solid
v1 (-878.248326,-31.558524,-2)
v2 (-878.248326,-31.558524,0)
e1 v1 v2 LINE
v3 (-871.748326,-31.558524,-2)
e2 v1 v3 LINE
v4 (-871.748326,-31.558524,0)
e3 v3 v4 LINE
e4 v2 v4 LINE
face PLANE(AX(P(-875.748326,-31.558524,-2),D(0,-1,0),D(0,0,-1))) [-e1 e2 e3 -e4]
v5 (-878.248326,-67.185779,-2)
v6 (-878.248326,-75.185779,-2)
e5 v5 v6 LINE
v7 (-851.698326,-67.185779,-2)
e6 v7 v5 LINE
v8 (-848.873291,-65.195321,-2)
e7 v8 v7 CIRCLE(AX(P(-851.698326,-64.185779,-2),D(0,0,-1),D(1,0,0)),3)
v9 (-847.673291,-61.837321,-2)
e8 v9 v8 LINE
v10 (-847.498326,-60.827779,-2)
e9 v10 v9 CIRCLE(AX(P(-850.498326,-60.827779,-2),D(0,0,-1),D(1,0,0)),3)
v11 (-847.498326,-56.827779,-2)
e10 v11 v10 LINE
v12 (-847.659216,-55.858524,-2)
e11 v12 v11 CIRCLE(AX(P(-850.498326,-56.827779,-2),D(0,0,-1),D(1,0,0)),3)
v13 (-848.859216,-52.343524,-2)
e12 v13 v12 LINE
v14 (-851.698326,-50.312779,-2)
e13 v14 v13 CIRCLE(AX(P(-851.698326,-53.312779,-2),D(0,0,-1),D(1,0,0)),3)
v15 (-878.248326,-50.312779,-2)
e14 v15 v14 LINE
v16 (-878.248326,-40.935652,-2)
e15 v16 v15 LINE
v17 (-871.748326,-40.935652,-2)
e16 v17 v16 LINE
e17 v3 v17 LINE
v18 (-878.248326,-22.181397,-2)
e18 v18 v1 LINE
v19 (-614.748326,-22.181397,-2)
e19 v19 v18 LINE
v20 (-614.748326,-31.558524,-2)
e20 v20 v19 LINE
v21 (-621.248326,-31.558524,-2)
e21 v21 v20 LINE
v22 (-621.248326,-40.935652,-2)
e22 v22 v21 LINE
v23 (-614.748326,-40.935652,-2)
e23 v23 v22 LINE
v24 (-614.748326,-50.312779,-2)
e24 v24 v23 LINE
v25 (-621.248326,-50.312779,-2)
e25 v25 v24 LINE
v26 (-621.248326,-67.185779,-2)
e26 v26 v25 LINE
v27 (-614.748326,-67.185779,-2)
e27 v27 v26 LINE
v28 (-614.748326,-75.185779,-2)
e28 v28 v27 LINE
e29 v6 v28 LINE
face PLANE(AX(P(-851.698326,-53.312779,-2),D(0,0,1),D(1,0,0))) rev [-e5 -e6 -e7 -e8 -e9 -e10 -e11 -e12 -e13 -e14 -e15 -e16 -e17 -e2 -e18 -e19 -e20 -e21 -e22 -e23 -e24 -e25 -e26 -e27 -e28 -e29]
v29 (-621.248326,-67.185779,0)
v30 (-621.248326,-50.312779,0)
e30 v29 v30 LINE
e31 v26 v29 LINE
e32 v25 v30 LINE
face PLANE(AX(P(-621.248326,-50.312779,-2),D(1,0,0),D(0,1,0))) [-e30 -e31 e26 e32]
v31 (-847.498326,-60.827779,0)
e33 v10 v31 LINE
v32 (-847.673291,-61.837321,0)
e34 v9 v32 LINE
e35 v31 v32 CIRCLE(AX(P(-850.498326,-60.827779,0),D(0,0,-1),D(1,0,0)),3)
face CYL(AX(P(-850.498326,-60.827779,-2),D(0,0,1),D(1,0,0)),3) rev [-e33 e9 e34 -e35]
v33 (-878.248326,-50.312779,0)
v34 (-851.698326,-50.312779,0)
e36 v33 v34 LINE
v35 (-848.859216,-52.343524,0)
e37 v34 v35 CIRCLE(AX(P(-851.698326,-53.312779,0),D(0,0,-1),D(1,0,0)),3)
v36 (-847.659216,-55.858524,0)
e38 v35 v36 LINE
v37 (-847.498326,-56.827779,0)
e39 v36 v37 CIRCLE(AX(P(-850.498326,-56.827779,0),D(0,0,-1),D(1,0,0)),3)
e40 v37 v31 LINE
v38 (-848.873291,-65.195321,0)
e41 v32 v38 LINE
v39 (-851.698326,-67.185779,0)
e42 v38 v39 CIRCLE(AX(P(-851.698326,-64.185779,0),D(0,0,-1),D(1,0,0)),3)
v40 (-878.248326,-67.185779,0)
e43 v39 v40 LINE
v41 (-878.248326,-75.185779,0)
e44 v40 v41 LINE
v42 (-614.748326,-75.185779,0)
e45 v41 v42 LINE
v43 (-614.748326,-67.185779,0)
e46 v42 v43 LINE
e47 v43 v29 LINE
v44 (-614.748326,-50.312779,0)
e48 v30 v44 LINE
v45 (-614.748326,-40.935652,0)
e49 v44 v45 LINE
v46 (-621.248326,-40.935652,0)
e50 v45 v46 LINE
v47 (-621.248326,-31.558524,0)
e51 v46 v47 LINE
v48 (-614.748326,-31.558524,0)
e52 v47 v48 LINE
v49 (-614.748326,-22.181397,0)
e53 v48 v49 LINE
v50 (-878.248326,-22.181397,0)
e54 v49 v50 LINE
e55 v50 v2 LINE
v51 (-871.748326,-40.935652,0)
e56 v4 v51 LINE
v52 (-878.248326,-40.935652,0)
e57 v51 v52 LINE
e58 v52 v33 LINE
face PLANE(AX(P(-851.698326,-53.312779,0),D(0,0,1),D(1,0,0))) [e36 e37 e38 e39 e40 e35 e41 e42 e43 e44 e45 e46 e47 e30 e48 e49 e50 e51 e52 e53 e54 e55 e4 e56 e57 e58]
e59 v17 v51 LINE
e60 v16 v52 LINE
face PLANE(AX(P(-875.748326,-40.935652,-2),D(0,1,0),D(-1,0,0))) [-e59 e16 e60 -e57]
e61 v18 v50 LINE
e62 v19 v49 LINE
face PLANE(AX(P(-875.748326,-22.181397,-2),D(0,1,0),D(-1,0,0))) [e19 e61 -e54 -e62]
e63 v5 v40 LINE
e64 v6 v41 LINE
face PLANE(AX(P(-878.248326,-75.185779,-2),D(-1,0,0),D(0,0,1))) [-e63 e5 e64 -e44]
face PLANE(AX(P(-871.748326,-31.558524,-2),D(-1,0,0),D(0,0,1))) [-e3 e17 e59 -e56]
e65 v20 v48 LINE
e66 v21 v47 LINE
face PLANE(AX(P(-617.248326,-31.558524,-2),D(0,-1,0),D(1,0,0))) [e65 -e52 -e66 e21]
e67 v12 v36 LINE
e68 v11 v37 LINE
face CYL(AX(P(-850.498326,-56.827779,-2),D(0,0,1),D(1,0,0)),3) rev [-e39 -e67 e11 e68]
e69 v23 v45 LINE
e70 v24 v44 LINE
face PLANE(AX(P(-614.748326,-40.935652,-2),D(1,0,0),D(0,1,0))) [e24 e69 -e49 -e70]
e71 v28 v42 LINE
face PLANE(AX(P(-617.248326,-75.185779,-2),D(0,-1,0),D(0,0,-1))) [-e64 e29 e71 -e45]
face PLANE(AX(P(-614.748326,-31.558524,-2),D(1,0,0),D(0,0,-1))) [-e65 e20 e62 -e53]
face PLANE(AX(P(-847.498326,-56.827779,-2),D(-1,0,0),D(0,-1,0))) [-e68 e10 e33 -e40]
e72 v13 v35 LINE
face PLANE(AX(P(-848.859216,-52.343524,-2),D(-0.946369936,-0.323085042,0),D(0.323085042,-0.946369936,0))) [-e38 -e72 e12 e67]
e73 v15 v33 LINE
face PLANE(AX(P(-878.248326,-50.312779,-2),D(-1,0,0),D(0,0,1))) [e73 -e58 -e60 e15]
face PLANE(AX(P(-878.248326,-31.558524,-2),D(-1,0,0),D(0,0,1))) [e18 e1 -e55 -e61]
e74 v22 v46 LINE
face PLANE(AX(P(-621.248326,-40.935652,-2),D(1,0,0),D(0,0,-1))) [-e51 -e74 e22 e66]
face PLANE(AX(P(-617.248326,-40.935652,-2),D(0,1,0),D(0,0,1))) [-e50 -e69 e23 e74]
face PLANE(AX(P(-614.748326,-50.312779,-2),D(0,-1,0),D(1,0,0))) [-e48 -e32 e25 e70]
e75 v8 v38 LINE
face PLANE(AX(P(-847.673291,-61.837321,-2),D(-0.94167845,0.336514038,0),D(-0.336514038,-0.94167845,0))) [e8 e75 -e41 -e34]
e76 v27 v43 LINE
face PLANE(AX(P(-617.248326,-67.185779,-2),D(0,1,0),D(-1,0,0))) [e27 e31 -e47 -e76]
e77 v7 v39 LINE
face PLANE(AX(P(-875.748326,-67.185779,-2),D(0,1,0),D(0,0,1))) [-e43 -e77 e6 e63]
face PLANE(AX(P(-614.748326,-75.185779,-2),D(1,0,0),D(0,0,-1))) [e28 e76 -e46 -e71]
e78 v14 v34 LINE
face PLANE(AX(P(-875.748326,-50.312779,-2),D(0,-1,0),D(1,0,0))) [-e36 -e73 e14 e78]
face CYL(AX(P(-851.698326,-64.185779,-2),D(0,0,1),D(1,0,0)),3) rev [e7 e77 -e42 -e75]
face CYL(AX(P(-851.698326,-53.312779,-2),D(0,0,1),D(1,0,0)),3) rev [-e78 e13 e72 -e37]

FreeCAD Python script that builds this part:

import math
import FreeCAD as App
import Part
import Sketcher

V = App.Vector

doc = App.newDocument("Part")
body = doc.addObject("PartDesign::Body", "Body")

# Sketch on XY plane
sketch1 = body.newObject("Sketcher::SketchObject", "Sketch")
sketch1.AttachmentSupport = (doc.getObject("XY_Plane"), [""])
sketch1.MapMode = "FlatFace"
sketch1.addGeometry([
    Part.LineSegment(V(-878.248326, -67.185779, 0), V(-878.248326, -75.185779, 0)),  # 0
    Part.LineSegment(V(-878.248326, -75.185779, 0), V(-614.748326, -75.185779, 0)),  # 1
    Part.LineSegment(V(-614.748326, -75.185779, 0), V(-614.748326, -67.185779, 0)),  # 2
    Part.LineSegment(V(-614.748326, -67.185779, 0), V(-621.248326, -67.185779, 0)),  # 3
    Part.LineSegment(V(-621.248326, -67.185779, 0), V(-621.248326, -50.312779, 0)),  # 4
    Part.LineSegment(V(-621.248326, -50.312779, 0), V(-614.748326, -50.312779, 0)),  # 5
    Part.LineSegment(V(-614.748326, -50.312779, 0), V(-614.748326, -40.935652, 0)),  # 6
    Part.LineSegment(V(-614.748326, -40.935652, 0), V(-621.248326, -40.935652, 0)),  # 7
    Part.LineSegment(V(-621.248326, -40.935652, 0), V(-621.248326, -31.558524, 0)),  # 8
    Part.LineSegment(V(-621.248326, -31.558524, 0), V(-614.748326, -31.558524, 0)),  # 9
    Part.LineSegment(V(-614.748326, -31.558524, 0), V(-614.748326, -22.181397, 0)),  # 10
    Part.LineSegment(V(-614.748326, -22.181397, 0), V(-878.248326, -22.181397, 0)),  # 11
    Part.LineSegment(V(-878.248326, -22.181397, 0), V(-878.248326, -31.558524, 0)),  # 12
    Part.LineSegment(V(-878.248326, -31.558524, 0), V(-871.748326, -31.558524, 0)),  # 13
    Part.LineSegment(V(-871.748326, -31.558524, 0), V(-871.748326, -40.935652, 0)),  # 14
    Part.LineSegment(V(-871.748326, -40.935652, 0), V(-878.248326, -40.935652, 0)),  # 15
    Part.LineSegment(V(-878.248326, -40.935652, 0), V(-878.248326, -50.312779, 0)),  # 16
    Part.LineSegment(V(-878.248326, -50.312779, 0), V(-851.698326, -50.312779, 0)),  # 17
    Part.ArcOfCircle(Part.Circle(V(-851.698326, -53.312779, 0), V(0, 0, 1), 3), math.radians(18.849598), math.radians(90)),  # 18
    Part.LineSegment(V(-848.859216, -52.343524, 0), V(-847.659216, -55.858524, 0)),  # 19
    Part.ArcOfCircle(Part.Circle(V(-850.498326, -56.827779, 0), V(0, 0, 1), 3), math.radians(0), math.radians(18.849598)),  # 20
    Part.LineSegment(V(-847.498326, -56.827779, 0), V(-847.498326, -60.827779, 0)),  # 21
    Part.ArcOfCircle(Part.Circle(V(-850.498326, -60.827779, 0), V(0, 0, 1), 3), math.radians(-19.664632), math.radians(0)),  # 22
    Part.LineSegment(V(-847.673291, -61.837321, 0), V(-848.873291, -65.195321, 0)),  # 23
    Part.ArcOfCircle(Part.Circle(V(-851.698326, -64.185779, 0), V(0, 0, 1), 3), math.radians(-90), math.radians(-19.664632)),  # 24
    Part.LineSegment(V(-851.698326, -67.185779, 0), V(-878.248326, -67.185779, 0)),  # 25
], False)
sketch1.addConstraint([
    Sketcher.Constraint("Coincident", 0, 2, 1, 1),
    Sketcher.Constraint("Coincident", 1, 2, 2, 1),
    Sketcher.Constraint("Coincident", 2, 2, 3, 1),
    Sketcher.Constraint("Coincident", 3, 2, 4, 1),
    Sketcher.Constraint("Coincident", 4, 2, 5, 1),
    Sketcher.Constraint("Coincident", 5, 2, 6, 1),
    Sketcher.Constraint("Coincident", 6, 2, 7, 1),
    Sketcher.Constraint("Coincident", 7, 2, 8, 1),
    Sketcher.Constraint("Coincident", 8, 2, 9, 1),
    Sketcher.Constraint("Coincident", 9, 2, 10, 1),
    Sketcher.Constraint("Coincident", 10, 2, 11, 1),
    Sketcher.Constraint("Coincident", 11, 2, 12, 1),
    Sketcher.Constraint("Coincident", 12, 2, 13, 1),
    Sketcher.Constraint("Coincident", 13, 2, 14, 1),
    Sketcher.Constraint("Coincident", 14, 2, 15, 1),
    Sketcher.Constraint("Coincident", 15, 2, 16, 1),
    Sketcher.Constraint("Coincident", 16, 2, 17, 1),
    Sketcher.Constraint("Tangent", 17, 2, 18, 2),
    Sketcher.Constraint("Tangent", 18, 1, 19, 1),
    Sketcher.Constraint("Tangent", 19, 2, 20, 2),
    Sketcher.Constraint("Tangent", 20, 1, 21, 1),
    Sketcher.Constraint("Tangent", 21, 2, 22, 2),
    Sketcher.Constraint("Tangent", 22, 1, 23, 1),
    Sketcher.Constraint("Tangent", 23, 2, 24, 2),
    Sketcher.Constraint("Tangent", 24, 1, 25, 1),
    Sketcher.Constraint("Coincident", 25, 2, 0, 1),
    Sketcher.Constraint("Vertical", 0),
    Sketcher.Constraint("Horizontal", 1),
    Sketcher.Constraint("Vertical", 2),
    Sketcher.Constraint("Horizontal", 3),
    Sketcher.Constraint("Vertical", 4),
    Sketcher.Constraint("Horizontal", 5),
    Sketcher.Constraint("Vertical", 6),
    Sketcher.Constraint("Horizontal", 7),
    Sketcher.Constraint("Vertical", 8),
    Sketcher.Constraint("Horizontal", 9),
    Sketcher.Constraint("Vertical", 10),
    Sketcher.Constraint("Horizontal", 11),
    Sketcher.Constraint("Vertical", 12),
    Sketcher.Constraint("Horizontal", 13),
    Sketcher.Constraint("Vertical", 14),
    Sketcher.Constraint("Horizontal", 15),
    Sketcher.Constraint("Vertical", 16),
    Sketcher.Constraint("Horizontal", 17),
    Sketcher.Constraint("Vertical", 21),
    Sketcher.Constraint("Horizontal", 25),
    Sketcher.Constraint("Equal", 18, 20),
    Sketcher.Constraint("Equal", 20, 22),
    Sketcher.Constraint("Equal", 22, 24),
    Sketcher.Constraint("Horizontal", 9, 2, 12, 2),
    Sketcher.Constraint("Horizontal", 7, 2, 14, 2),
    Sketcher.Constraint("Horizontal", 5, 2, 16, 2),
    Sketcher.Constraint("Horizontal", 3, 2, 24, 1),
    Sketcher.Constraint("Vertical", 18, 3, 24, 3),
    Sketcher.Constraint("Vertical", 2, 2, 5, 2),
    Sketcher.Constraint("Vertical", 4, 2, 7, 2),
    Sketcher.Constraint("Vertical", 6, 2, 9, 2),
    Sketcher.Constraint("Vertical", 0, 2, 11, 2),
    Sketcher.Constraint("Vertical", 12, 2, 15, 2),
    Sketcher.Constraint("Equal", 9, 13),
    Sketcher.Constraint("Equal", 6, 8),
    Sketcher.Constraint("Equal", 8, 10),
    Sketcher.Constraint("Radius", 18, 3.0),
    Sketcher.Constraint("DistanceY", 0, 2, 0, 1, 8.0),
    Sketcher.Constraint("DistanceY", 21, 2, 21, 1, 4.0),
    Sketcher.Constraint("DistanceX", 1, 1, 1, 2, 263.5),
    Sketcher.Constraint("DistanceX", 3, 2, 3, 1, 6.5),
    Sketcher.Constraint("DistanceX", 17, 1, 17, 2, 26.55),
    Sketcher.Constraint("DistanceX", 18, 3, 20, 3, 1.2),
    Sketcher.Constraint("DistanceY", 4, 1, 4, 2, 16.873),
    Sketcher.Constraint("DistanceY", 20, 3, 18, 3, 3.515),
    Sketcher.Constraint("DistanceY", 6, 1, 6, 2, 9.377127),
    Sketcher.Constraint("DistanceY", 18, 3, -1, 1, 53.312779),
    Sketcher.Constraint("DistanceX", 22, 1, -1, 1, 847.673291),
])
pad1 = body.newObject("PartDesign::Pad", "Pad")
pad1.Profile = sketch1
pad1.Length = 2
pad1.Reversed = True

doc.recompute()
